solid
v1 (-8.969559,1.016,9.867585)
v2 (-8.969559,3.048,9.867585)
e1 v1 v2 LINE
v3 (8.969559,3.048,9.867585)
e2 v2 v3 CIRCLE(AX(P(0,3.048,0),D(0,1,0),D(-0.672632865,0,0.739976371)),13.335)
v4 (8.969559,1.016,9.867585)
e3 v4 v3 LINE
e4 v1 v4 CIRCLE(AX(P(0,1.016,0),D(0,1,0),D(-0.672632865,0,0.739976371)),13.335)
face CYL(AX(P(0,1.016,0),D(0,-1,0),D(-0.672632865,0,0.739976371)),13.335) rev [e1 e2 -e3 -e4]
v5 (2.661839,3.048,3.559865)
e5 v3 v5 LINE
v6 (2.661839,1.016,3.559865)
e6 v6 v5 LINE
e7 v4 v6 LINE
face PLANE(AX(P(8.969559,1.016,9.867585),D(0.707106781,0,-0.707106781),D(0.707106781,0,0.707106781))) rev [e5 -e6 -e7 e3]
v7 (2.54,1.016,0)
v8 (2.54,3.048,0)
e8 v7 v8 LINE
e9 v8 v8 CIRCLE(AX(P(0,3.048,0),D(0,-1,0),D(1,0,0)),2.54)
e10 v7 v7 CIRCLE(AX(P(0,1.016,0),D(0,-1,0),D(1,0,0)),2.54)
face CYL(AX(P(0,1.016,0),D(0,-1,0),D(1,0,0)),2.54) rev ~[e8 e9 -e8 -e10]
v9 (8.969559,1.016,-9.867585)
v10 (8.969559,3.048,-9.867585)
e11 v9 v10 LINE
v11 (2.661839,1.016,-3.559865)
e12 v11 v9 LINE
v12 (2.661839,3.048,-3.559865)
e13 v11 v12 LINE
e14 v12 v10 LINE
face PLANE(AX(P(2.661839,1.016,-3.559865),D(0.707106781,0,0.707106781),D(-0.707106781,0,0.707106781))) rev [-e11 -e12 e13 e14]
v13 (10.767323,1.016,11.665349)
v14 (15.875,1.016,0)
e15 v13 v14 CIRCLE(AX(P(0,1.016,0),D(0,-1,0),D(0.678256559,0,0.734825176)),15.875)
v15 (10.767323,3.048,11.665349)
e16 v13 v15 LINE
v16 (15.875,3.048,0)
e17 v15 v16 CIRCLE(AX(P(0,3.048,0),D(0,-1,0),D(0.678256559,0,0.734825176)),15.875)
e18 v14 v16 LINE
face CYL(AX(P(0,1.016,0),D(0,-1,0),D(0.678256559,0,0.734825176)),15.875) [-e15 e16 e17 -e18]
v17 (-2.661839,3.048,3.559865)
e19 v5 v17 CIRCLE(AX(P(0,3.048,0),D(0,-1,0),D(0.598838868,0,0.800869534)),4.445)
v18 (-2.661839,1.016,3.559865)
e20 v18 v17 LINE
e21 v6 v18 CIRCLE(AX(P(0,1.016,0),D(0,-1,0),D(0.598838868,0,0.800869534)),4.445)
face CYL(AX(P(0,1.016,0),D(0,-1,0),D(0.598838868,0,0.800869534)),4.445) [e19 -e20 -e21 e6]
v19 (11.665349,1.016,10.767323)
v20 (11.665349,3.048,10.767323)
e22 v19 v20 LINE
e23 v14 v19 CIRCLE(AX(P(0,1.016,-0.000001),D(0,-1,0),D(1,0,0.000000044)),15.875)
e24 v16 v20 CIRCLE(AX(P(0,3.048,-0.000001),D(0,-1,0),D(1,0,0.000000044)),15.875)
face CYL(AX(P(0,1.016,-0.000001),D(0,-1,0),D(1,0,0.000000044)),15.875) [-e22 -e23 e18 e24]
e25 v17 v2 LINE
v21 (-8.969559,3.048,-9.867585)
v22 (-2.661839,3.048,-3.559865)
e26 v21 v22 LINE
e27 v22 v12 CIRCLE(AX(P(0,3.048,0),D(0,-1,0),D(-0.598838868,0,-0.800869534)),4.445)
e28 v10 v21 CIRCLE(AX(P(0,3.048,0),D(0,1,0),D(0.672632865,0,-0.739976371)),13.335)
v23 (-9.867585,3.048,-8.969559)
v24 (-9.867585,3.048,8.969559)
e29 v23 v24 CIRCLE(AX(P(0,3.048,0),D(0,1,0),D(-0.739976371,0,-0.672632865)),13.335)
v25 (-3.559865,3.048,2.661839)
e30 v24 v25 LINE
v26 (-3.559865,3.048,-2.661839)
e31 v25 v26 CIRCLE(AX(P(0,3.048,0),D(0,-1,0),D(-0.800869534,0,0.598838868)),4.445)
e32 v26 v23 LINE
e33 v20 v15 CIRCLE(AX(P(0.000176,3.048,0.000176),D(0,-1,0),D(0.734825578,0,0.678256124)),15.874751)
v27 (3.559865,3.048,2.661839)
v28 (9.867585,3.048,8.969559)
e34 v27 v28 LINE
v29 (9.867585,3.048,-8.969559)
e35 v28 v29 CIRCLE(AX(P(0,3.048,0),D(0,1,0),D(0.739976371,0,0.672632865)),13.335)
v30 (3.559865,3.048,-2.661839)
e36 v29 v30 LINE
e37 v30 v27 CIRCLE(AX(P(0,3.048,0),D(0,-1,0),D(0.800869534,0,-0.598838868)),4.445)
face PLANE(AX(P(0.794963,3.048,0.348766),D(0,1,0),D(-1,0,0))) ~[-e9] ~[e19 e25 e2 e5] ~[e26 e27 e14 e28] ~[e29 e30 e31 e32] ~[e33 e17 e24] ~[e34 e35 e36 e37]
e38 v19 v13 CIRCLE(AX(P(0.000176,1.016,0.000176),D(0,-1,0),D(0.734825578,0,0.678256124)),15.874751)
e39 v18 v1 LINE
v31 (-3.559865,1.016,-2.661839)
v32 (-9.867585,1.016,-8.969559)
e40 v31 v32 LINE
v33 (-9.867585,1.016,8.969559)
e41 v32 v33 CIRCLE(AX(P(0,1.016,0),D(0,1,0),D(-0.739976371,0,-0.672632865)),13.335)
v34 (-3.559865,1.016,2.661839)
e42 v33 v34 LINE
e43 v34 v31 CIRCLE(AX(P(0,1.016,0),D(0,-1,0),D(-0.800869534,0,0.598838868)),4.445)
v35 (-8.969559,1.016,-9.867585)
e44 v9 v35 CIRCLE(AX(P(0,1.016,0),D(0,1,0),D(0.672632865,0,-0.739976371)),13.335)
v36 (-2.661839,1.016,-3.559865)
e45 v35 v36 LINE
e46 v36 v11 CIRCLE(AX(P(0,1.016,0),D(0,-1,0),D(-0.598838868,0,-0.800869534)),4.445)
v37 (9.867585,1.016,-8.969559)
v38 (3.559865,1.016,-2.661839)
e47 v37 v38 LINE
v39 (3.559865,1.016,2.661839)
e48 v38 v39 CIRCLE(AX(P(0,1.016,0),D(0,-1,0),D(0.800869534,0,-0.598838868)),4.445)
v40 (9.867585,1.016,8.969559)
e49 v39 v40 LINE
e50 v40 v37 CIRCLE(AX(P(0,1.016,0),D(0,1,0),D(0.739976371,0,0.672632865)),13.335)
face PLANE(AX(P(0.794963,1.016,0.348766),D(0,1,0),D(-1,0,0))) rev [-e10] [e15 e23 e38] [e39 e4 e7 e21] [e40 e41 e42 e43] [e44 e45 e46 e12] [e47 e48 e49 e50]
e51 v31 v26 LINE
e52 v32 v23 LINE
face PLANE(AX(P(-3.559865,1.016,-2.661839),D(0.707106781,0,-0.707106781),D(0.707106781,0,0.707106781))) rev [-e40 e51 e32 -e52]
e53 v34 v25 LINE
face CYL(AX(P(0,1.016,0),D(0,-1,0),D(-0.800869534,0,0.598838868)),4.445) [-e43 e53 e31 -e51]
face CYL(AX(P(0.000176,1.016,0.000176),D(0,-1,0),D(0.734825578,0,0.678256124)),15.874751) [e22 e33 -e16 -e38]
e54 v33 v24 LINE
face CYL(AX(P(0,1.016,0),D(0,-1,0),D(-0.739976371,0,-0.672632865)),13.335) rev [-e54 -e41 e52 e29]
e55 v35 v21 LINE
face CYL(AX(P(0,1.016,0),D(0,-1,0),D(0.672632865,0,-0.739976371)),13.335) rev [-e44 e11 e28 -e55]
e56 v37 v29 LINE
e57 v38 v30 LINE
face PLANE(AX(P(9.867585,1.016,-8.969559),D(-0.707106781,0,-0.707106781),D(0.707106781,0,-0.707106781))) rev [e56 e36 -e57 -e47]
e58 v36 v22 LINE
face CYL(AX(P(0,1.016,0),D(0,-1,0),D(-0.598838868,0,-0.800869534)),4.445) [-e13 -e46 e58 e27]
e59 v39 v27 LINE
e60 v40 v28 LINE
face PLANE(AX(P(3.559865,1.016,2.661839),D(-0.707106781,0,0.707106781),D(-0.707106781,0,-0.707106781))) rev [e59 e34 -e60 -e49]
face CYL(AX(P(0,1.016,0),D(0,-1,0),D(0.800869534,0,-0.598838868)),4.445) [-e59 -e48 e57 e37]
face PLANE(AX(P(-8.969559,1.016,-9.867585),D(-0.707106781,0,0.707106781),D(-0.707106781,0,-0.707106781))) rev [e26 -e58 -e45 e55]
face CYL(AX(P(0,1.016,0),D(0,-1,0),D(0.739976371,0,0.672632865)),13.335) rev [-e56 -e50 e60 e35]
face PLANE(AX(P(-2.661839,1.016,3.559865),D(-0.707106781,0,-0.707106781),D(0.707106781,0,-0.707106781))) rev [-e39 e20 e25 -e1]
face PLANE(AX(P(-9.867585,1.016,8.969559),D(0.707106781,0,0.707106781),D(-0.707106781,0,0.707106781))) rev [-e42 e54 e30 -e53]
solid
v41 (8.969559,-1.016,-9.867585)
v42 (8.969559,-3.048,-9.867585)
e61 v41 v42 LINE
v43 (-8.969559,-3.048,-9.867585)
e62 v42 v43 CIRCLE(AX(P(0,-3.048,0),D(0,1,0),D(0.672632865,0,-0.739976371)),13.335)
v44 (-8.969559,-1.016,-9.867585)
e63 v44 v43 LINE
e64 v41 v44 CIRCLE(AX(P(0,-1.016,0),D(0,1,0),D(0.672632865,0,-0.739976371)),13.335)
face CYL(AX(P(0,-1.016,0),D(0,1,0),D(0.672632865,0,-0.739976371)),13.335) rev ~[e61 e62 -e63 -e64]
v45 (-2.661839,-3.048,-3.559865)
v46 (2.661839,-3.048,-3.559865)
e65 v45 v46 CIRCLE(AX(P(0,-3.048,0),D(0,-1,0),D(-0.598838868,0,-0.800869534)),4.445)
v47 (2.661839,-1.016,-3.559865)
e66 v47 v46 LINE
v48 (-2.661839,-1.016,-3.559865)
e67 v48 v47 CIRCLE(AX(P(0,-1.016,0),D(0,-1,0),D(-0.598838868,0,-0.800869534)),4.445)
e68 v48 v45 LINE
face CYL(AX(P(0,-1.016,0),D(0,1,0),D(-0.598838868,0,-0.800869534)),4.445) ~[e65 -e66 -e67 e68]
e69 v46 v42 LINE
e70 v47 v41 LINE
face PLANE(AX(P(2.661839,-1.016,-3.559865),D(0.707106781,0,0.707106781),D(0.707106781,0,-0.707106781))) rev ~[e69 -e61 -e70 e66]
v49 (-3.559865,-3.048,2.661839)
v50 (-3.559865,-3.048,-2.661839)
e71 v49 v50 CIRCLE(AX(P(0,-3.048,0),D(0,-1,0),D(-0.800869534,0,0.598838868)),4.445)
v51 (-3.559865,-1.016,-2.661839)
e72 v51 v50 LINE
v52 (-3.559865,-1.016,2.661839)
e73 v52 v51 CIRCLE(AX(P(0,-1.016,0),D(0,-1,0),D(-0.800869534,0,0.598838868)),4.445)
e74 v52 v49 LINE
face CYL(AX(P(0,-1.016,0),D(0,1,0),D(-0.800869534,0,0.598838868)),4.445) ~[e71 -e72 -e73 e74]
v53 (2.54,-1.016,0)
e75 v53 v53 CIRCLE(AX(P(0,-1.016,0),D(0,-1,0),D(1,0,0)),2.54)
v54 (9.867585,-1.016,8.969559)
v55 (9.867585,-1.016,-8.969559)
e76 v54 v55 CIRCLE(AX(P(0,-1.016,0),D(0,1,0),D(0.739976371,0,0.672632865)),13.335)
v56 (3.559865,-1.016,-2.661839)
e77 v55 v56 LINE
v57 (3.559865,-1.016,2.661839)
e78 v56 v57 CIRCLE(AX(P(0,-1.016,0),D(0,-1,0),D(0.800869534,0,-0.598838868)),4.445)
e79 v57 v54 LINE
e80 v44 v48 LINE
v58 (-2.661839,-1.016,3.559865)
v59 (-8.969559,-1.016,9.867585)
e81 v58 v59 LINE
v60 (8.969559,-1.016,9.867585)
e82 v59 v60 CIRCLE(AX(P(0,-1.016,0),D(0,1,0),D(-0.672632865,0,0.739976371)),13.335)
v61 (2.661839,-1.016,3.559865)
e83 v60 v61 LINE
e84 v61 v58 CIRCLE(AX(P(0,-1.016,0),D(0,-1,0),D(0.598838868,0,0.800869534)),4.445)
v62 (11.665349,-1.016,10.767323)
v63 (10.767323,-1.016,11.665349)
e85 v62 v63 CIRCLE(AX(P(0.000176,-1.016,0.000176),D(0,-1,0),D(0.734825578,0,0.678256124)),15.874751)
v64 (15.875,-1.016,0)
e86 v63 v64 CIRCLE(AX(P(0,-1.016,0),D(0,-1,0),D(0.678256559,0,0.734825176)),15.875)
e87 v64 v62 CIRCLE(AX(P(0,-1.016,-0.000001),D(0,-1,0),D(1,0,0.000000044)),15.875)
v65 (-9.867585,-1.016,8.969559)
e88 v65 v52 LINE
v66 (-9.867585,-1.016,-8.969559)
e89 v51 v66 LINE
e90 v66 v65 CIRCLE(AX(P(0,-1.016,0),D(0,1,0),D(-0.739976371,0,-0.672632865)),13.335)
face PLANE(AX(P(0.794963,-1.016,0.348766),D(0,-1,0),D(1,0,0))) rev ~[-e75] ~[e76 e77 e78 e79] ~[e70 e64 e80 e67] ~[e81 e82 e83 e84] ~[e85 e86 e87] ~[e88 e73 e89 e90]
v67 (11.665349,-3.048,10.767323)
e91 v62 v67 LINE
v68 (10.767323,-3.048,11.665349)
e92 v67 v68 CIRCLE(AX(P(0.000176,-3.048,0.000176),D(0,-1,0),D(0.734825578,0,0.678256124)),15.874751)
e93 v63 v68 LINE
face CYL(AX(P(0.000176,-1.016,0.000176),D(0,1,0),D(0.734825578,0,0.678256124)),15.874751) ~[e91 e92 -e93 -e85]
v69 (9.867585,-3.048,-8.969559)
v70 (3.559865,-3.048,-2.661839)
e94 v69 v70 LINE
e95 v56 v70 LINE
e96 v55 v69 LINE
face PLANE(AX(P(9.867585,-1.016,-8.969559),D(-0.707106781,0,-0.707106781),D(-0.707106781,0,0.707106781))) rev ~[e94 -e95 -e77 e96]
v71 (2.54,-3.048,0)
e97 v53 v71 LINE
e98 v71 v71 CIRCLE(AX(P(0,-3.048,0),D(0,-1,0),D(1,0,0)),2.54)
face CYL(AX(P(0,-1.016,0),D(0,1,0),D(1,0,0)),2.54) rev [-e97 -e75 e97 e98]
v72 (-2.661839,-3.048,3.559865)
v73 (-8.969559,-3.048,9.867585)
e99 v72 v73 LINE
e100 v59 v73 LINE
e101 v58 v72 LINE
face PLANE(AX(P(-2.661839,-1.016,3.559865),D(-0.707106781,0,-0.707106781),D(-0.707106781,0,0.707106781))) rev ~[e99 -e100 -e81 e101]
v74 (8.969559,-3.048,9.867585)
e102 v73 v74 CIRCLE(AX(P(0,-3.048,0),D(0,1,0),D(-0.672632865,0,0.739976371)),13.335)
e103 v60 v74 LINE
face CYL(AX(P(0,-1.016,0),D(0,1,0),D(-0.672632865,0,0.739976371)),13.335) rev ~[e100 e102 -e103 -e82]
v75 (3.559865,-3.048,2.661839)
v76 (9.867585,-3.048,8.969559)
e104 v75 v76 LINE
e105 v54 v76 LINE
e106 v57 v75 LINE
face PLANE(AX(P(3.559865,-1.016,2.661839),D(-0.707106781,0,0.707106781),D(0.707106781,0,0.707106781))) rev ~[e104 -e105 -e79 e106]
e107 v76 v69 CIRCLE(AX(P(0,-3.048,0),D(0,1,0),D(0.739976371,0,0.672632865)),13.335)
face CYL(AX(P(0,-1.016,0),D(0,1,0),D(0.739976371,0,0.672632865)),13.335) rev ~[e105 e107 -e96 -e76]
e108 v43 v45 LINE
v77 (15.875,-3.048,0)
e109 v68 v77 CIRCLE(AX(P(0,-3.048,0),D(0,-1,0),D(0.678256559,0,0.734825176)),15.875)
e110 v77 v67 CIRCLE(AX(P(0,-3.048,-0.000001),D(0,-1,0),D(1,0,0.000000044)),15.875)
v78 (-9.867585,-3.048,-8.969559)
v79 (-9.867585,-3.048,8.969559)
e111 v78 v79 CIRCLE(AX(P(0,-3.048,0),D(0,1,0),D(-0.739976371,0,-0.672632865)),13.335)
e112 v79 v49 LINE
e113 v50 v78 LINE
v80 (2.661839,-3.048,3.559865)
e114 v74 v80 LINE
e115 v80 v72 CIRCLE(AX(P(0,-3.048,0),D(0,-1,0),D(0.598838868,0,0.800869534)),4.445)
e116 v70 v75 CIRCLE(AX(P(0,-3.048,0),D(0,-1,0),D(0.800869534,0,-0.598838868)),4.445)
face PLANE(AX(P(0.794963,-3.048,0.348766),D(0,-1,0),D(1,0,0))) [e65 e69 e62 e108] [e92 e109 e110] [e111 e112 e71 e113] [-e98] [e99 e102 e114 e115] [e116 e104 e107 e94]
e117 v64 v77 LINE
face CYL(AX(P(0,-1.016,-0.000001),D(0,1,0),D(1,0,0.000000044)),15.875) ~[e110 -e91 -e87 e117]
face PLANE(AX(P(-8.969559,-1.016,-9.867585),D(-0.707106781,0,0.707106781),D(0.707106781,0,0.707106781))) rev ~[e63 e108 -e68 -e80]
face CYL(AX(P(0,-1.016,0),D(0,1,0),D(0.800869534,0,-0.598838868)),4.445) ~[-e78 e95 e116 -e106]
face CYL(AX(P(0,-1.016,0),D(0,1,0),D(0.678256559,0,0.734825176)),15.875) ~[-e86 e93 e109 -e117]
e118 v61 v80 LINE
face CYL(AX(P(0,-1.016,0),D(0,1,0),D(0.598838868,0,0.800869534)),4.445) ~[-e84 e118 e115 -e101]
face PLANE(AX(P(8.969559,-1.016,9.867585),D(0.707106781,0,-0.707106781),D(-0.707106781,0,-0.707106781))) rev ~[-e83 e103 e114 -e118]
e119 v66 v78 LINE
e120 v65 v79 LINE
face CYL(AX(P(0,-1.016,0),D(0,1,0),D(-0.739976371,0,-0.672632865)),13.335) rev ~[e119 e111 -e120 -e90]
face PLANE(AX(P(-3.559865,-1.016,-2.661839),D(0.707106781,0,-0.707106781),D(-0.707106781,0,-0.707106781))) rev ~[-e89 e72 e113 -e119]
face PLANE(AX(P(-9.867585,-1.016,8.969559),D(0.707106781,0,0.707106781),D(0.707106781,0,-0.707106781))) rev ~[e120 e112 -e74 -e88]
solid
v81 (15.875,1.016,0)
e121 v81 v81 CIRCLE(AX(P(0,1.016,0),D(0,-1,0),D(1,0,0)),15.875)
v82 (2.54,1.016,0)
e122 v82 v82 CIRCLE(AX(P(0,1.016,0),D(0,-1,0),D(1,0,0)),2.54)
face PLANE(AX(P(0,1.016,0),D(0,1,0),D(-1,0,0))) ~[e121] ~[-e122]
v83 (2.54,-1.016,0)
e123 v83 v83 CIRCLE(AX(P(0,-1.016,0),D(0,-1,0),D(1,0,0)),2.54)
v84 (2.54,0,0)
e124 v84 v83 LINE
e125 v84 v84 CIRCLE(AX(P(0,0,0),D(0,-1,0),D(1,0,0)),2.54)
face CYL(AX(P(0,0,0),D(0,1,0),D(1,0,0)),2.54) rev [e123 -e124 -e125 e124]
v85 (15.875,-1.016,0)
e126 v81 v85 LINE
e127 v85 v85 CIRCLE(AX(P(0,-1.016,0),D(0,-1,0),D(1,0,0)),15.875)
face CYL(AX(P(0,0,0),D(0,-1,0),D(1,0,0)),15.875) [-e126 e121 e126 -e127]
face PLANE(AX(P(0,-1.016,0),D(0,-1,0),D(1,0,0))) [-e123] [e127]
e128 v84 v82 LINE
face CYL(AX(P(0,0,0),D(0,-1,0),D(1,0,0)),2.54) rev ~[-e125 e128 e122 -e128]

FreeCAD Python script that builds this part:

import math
import FreeCAD as App
import Part
import Sketcher

V = App.Vector
Q = App.Units.Quantity

doc = App.newDocument("Part")
body = doc.addObject("PartDesign::Body", "Body")

# Sketch on XZ plane
sketch1 = body.newObject("Sketcher::SketchObject", "Sketch")
sketch1.AttachmentSupport = (doc.getObject("XZ_Plane"), [""])
sketch1.MapMode = "FlatFace"
sketch1.addGeometry([
    Part.Circle(V(0, 0, 0), V(0, 0, 1), 15.875),
    Part.Circle(V(0, 0, 0), V(0, 0, 1), 2.54),
], False)
sketch1.addConstraint([
    Sketcher.Constraint("Coincident", 0, 3, -1, 1),
    Sketcher.Constraint("Coincident", 1, 3, -1, 1),
    Sketcher.Constraint("Diameter", 1, Q("0.2 in")),
    Sketcher.Constraint("Diameter", 0, Q("1.25 in")),
])
pad1 = body.newObject("PartDesign::Pad", "Pad")
pad1.Profile = sketch1
pad1.Length = Q("0.04 in")
body2 = doc.addObject("PartDesign::Body", "Body001")

# Sketch on XZ plane
sketch2 = body2.newObject("Sketcher::SketchObject", "Sketch001")
sketch2.AttachmentSupport = (doc.getObject("XZ_Plane001"), [""])
sketch2.MapMode = "FlatFace"
sketch2.AttachmentOffset = App.Placement(V(0, 0, 0.04 * 25.4), App.Rotation())
sketch2.addGeometry([
    Part.ArcOfCircle(Part.Circle(V(0, -0.000001, 0), V(0, 0, 1), 15.875), math.radians(0.000003), math.radians(42.707557)),  # 0
    Part.ArcOfCircle(Part.Circle(V(0.000176, 0.000176, 0), V(0, 0, 1), 15.874751), math.radians(42.70752), math.radians(47.29248)),  # 1
    Part.ArcOfCircle(Part.Circle(V(0, 0, 0), V(0, 0, 1), 15.875), math.radians(47.292446), math.radians(360.000001)),  # 2
    Part.ArcOfCircle(Part.Circle(V(0, 0, 0), V(0, 0, 1), 13.335), math.radians(-132.270597), math.radians(-47.729403)),  # 3
    Part.LineSegment(V(-8.969559, -9.867585, 0), V(-2.661839, -3.559865, 0)),  # 4
    Part.ArcOfCircle(Part.Circle(V(0, 0, 0), V(0, 0, 1), 4.445), math.radians(-126.786783), math.radians(-53.213217)),  # 5
    Part.LineSegment(V(2.661839, -3.559865, 0), V(8.969559, -9.867585, 0)),  # 6
    Part.ArcOfCircle(Part.Circle(V(0, 0, 0), V(0, 0, 1), 13.335), math.radians(137.729403), math.radians(222.270597)),  # 7
    Part.LineSegment(V(-9.867585, 8.969559, 0), V(-3.559865, 2.661839, 0)),  # 8
    Part.ArcOfCircle(Part.Circle(V(0, 0, 0), V(0, 0, 1), 4.445), math.radians(143.213217), math.radians(216.786783)),  # 9
    Part.LineSegment(V(-3.559865, -2.661839, 0), V(-9.867585, -8.969559, 0)),  # 10
    Part.Circle(V(0, 0, 0), V(0, 0, 1), 2.54),  # 11
    Part.ArcOfCircle(Part.Circle(V(0, 0, 0), V(0, 0, 1), 13.335), math.radians(47.729403), math.radians(132.270597)),  # 12
    Part.LineSegment(V(8.969559, 9.867585, 0), V(2.661839, 3.559865, 0)),  # 13
    Part.ArcOfCircle(Part.Circle(V(0, 0, 0), V(0, 0, 1), 4.445), math.radians(53.213217), math.radians(126.786783)),  # 14
    Part.LineSegment(V(-2.661839, 3.559865, 0), V(-8.969559, 9.867585, 0)),  # 15
    Part.LineSegment(V(9.867585, -8.969559, 0), V(3.559865, -2.661839, 0)),  # 16
    Part.ArcOfCircle(Part.Circle(V(0, 0, 0), V(0, 0, 1), 4.445), math.radians(-36.786783), math.radians(36.786783)),  # 17
    Part.LineSegment(V(3.559865, 2.661839, 0), V(9.867585, 8.969559, 0)),  # 18
    Part.ArcOfCircle(Part.Circle(V(0, 0, 0), V(0, 0, 1), 13.335), math.radians(-42.270597), math.radians(42.270597)),  # 19
], False)
sketch2.addConstraint([
    Sketcher.Constraint("Coincident", 0, 2, 1, 1),
    Sketcher.Constraint("Coincident", 1, 2, 2, 1),
    Sketcher.Constraint("Coincident", 2, 2, 0, 1),
    Sketcher.Constraint("Coincident", 3, 1, 4, 1),
    Sketcher.Constraint("Coincident", 4, 2, 5, 1),
    Sketcher.Constraint("Coincident", 5, 2, 6, 1),
    Sketcher.Constraint("Coincident", 6, 2, 3, 2),
    Sketcher.Constraint("Coincident", 7, 1, 8, 1),
    Sketcher.Constraint("Coincident", 8, 2, 9, 1),
    Sketcher.Constraint("Coincident", 9, 2, 10, 1),
    Sketcher.Constraint("Coincident", 10, 2, 7, 2),
    Sketcher.Constraint("Coincident", 12, 1, 13, 1),
    Sketcher.Constraint("Coincident", 13, 2, 14, 1),
    Sketcher.Constraint("Coincident", 14, 2, 15, 1),
    Sketcher.Constraint("Coincident", 15, 2, 12, 2),
    Sketcher.Constraint("Coincident", 16, 2, 17, 1),
    Sketcher.Constraint("Coincident", 17, 2, 18, 1),
    Sketcher.Constraint("Coincident", 18, 2, 19, 2),
    Sketcher.Constraint("Coincident", 19, 1, 16, 1),
    Sketcher.Constraint("Coincident", 0, 3, -1, 1),
    Sketcher.Constraint("Coincident", 2, 3, -1, 1),
    Sketcher.Constraint("Coincident", 3, 3, -1, 1),
    Sketcher.Constraint("Coincident", 5, 3, -1, 1),
    Sketcher.Constraint("Coincident", 7, 3, -1, 1),
    Sketcher.Constraint("Coincident", 9, 3, -1, 1),
    Sketcher.Constraint("Coincident", 11, 3, -1, 1),
    Sketcher.Constraint("Coincident", 12, 3, -1, 1),
    Sketcher.Constraint("Coincident", 14, 3, -1, 1),
    Sketcher.Constraint("Coincident", 17, 3, -1, 1),
    Sketcher.Constraint("Coincident", 19, 3, -1, 1),
    Sketcher.Constraint("PointOnObject", 2, 2, -1),
    Sketcher.Constraint("Diameter", 11, Q("0.2 in")),
    Sketcher.Constraint("Radius", 0, Q("0.625 in")),
    Sketcher.Constraint("Radius", 3, Q("0.525 in")),
    Sketcher.Constraint("Radius", 5, Q("0.175 in")),
    Sketcher.Constraint("Radius", 7, Q("0.525 in")),
    Sketcher.Constraint("Radius", 9, Q("0.175 in")),
    Sketcher.Constraint("Radius", 12, Q("0.525 in")),
    Sketcher.Constraint("Radius", 14, Q("0.175 in")),
    Sketcher.Constraint("Radius", 17, Q("0.175 in")),
    Sketcher.Constraint("Radius", 19, Q("0.525 in")),
    Sketcher.Constraint("Radius", 1, 15.874751),
    Sketcher.Constraint("DistanceX", 4, 2, 6, 2, 11.631398),
    Sketcher.Constraint("DistanceY", 10, 2, 8, 2, 11.631398),
    Sketcher.Constraint("DistanceX", 15, 2, 13, 2, 11.631398),
    Sketcher.Constraint("DistanceX", -1, 1, 0, 2, 11.665349),
    Sketcher.Constraint("DistanceY", -1, 1, 1, 2, 11.665349),
    Sketcher.Constraint("DistanceX", 3, 1, -1, 1, 8.969559),
    Sketcher.Constraint("DistanceX", 4, 2, -1, 1, 2.661839),
    Sketcher.Constraint("DistanceX", -1, 1, 5, 2, 2.661839),
    Sketcher.Constraint("DistanceY", -1, 1, 7, 1, 8.969559),
    Sketcher.Constraint("DistanceY", -1, 1, 8, 2, 2.661839),
    Sketcher.Constraint("DistanceY", 9, 2, -1, 1, 2.661839),
    Sketcher.Constraint("DistanceX", -1, 1, 12, 1, 8.969559),
    Sketcher.Constraint("DistanceX", -1, 1, 13, 2, 2.661839),
    Sketcher.Constraint("DistanceX", 14, 2, -1, 1, 2.661839),
    Sketcher.Constraint("DistanceY", 16, 2, -1, 1, 2.661839),
    Sketcher.Constraint("DistanceY", -1, 1, 17, 2, 2.661839),
    Sketcher.Constraint("DistanceY", -1, 1, 18, 2, 8.969559),
    Sketcher.Constraint("DistanceY", 19, 1, -1, 1, 8.969559),
])
pad2 = body2.newObject("PartDesign::Pad", "Pad001")
pad2.Profile = sketch2
pad2.Length = Q("0.08 in")
body3 = doc.addObject("PartDesign::Body", "Body002")
doc.recompute()

body3.BaseFeature = body
doc.recompute()

mirroring = doc.addObject("Part::Mirroring", "Mirroring")
mirroring.Source = body
mirroring.Base = V(0, 0, 0)
mirroring.Normal = V(0, -1, 0)
body4 = doc.addObject("PartDesign::Body", "Body003")
body4.BaseFeature = mirroring
boolean = body3.newObject("PartDesign::Boolean", "Boolean")
boolean.Type = "Fuse"
boolean.addObjects([body4])
doc.recompute()
body5 = doc.addObject("PartDesign::Body", "Body004")
doc.recompute()

mirroring2 = doc.addObject("Part::Mirroring", "Mirroring001")
mirroring2.Source = body2
mirroring2.Base = V(0, 0, 0)
mirroring2.Normal = V(0, -1, 0)
body5.BaseFeature = mirroring2
doc.recompute()
mirroring.Visibility = False
mirroring2.Visibility = False

doc.recompute()
